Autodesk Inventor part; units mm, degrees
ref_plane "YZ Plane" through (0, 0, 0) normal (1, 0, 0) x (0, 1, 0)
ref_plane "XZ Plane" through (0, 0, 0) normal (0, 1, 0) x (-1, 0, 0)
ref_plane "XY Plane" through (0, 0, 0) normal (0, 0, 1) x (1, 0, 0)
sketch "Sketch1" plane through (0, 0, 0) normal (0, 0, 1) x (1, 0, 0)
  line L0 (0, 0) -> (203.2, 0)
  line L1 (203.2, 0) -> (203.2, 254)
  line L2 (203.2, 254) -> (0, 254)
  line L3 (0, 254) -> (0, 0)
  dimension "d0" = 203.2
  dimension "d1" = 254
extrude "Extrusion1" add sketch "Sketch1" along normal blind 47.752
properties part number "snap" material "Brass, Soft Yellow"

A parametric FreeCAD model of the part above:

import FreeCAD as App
import Part
import Sketcher
from FreeCAD import Vector
Q = App.Units.Quantity


def add_polygon(sketch, points):
    """Adds a closed chain of lines whose ends are joined by coincident constraints."""
    first, n = sketch.GeometryCount, len(points)
    for a, b in zip(points, points[1:] + points[:1]):
        sketch.addGeometry(Part.LineSegment(App.Vector(*a, 0), App.Vector(*b, 0)), False)
    for i in range(n):
        sketch.addConstraint(Sketcher.Constraint("Coincident", first + i, 2, first + (i + 1) % n, 1))

doc = App.newDocument("Part")
params = doc.addObject("Spreadsheet::Sheet", "Params")
for row, (alias, value) in enumerate([
    ("sketch1_width", "8 in"),
    ("sketch1_height", "10 in"),
    ("pad1_length", "1.88 in"),
], start=1):
    params.set(f"A{row}", alias)
    params.set(f"B{row}", "=" + value)
    params.setAlias(f"B{row}", alias)

body = doc.addObject("PartDesign::Body", "Body")

sketch1 = body.newObject("Sketcher::SketchObject", "Sketch")
sketch1.AttachmentSupport = (doc.getObject("XY_Plane"), [""])
sketch1.MapMode = "FlatFace"
add_polygon(sketch1, [(0, 254), (0, 0), (203, 0), (203, 254)])
sketch1.addConstraint(Sketcher.Constraint("Vertical", 0))
sketch1.addConstraint(Sketcher.Constraint("Horizontal", 1))
sketch1.addConstraint(Sketcher.Constraint("Vertical", 2))
sketch1.addConstraint(Sketcher.Constraint("Horizontal", 3))
sketch1.addConstraint(Sketcher.Constraint("Coincident", 0, 2, -1, 1))
sketch1.addConstraint(Sketcher.Constraint("DistanceX", 1, 1, 1, 2, Q("8 in")))
sketch1.addConstraint(Sketcher.Constraint("DistanceY", 0, 2, 0, 1, Q("10 in")))
sketch1.setExpression("Constraints[9]", "Params.sketch1_width")
sketch1.setExpression("Constraints[10]", "Params.sketch1_height")
pad1 = body.newObject("PartDesign::Pad", "Pad")
pad1.Profile = sketch1
pad1.setExpression("Length", "Params.pad1_length")

doc.recompute()
